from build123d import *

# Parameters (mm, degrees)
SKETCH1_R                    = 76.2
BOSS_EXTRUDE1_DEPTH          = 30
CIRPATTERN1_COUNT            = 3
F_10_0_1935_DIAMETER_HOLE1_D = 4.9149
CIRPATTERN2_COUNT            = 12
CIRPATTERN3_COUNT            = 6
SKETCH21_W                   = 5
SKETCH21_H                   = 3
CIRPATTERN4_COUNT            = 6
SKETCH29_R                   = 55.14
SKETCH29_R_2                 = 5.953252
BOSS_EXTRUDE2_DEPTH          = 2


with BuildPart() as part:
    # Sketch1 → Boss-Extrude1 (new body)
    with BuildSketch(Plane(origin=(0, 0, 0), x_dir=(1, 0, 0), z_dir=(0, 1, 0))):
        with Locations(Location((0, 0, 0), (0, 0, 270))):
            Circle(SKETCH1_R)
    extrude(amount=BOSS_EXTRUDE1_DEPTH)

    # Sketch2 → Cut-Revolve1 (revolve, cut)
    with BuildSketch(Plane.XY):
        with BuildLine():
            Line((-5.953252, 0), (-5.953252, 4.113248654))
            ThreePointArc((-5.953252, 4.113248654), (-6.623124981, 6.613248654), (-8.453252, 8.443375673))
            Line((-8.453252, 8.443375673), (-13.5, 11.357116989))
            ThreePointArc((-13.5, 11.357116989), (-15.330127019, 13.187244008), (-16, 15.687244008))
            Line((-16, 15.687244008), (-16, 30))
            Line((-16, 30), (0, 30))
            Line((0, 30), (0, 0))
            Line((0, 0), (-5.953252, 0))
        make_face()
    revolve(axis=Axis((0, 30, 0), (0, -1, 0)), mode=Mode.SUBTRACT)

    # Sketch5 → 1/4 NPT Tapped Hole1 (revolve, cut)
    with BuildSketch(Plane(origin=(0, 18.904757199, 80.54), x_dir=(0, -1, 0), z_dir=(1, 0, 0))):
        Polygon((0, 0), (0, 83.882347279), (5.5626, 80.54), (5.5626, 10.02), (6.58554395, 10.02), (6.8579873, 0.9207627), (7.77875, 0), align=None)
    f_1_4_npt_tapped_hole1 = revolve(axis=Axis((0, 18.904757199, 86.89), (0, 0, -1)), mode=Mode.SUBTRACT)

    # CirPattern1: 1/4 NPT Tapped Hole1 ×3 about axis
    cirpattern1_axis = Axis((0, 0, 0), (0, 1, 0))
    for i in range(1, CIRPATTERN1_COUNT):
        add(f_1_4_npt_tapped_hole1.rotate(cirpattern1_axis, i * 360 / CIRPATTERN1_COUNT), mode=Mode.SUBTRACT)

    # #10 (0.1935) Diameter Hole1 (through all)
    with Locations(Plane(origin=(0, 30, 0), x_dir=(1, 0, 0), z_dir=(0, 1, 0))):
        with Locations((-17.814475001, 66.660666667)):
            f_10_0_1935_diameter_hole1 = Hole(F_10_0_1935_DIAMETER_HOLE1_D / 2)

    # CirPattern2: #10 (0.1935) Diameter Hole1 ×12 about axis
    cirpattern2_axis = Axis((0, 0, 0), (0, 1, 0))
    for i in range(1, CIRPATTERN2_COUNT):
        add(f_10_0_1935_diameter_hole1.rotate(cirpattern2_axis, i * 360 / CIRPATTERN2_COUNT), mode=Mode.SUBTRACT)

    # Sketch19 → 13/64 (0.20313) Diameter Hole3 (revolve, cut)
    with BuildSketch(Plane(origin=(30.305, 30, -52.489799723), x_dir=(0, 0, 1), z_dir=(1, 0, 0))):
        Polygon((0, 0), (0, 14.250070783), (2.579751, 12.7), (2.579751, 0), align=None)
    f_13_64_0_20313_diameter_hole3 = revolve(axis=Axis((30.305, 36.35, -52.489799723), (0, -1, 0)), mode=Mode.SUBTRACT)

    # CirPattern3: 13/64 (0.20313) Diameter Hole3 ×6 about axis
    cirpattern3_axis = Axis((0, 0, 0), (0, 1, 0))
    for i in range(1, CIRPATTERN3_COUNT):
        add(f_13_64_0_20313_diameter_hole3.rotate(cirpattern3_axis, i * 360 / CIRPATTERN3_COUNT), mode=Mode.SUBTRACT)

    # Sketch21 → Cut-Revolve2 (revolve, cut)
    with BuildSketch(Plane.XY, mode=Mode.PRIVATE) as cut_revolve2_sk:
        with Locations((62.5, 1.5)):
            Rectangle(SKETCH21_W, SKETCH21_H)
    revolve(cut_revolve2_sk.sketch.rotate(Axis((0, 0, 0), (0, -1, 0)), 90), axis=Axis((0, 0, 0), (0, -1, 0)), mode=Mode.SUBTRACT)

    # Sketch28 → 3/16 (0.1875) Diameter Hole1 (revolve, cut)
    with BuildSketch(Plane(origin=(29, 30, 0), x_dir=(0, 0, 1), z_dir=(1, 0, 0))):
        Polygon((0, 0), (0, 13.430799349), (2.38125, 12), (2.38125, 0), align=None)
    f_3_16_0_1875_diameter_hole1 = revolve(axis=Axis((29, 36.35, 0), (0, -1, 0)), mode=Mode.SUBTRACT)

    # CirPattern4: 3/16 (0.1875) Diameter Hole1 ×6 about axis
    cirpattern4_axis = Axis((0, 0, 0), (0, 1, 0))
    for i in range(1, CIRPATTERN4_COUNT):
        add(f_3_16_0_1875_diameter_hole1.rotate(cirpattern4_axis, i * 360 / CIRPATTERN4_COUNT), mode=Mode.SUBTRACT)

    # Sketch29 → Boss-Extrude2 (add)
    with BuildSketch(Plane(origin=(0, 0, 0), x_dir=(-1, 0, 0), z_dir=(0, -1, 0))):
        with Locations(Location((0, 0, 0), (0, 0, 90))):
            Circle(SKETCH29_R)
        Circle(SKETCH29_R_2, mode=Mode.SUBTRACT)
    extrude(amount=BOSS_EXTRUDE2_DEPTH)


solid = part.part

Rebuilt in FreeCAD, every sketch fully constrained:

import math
import FreeCAD as App
import Part
import Sketcher

V = App.Vector
Q = App.Units.Quantity


def add_polygon(sketch, points):
    """Adds a closed chain of lines whose ends are joined by coincident constraints."""
    first, n = sketch.GeometryCount, len(points)
    for a, b in zip(points, points[1:] + points[:1]):
        sketch.addGeometry(Part.LineSegment(App.Vector(*a, 0), App.Vector(*b, 0)), False)
    for i in range(n):
        sketch.addConstraint(Sketcher.Constraint("Coincident", first + i, 2, first + (i + 1) % n, 1))

doc = App.newDocument("Part")
body = doc.addObject("PartDesign::Body", "Body")

# Sketch on XZ plane
sketch1 = doc.addObject("Sketcher::SketchObject", "Sketch")
body.addObject(sketch1)
sketch1.AttachmentSupport = (doc.XZ_Plane, [""])
sketch1.MapMode = "FlatFace"
sketch1.addGeometry(Part.Circle(V(0, 0, 0), V(0, 0, 1), 76), False)
sketch1.addConstraint([
    Sketcher.Constraint("Coincident", 0, 3, -1, 1),
    Sketcher.Constraint("Diameter", 0, Q("152.4 mm")),
])
pad1 = doc.addObject("PartDesign::Pad", "Pad")
body.addObject(pad1)
pad1.Profile = sketch1
pad1.Length = 30
pad1.Reversed = True

# Sketch on XY plane
sketch2 = doc.addObject("Sketcher::SketchObject", "Sketch001")
body.addObject(sketch2)
sketch2.AttachmentSupport = (doc.XY_Plane, [""])
sketch2.MapMode = "FlatFace"
sketch2.addGeometry([
    Part.LineSegment(V(-6, 4.1, 0), V(-6, 0, 0)),  # 0
    Part.LineSegment(V(-6, 0, 0), V(0, 0, 0)),  # 1
    Part.LineSegment(V(0, 0, 0), V(0, 30, 0)),  # 2
    Part.LineSegment(V(0, 30, 0), V(-16, 30, 0)),  # 3
    Part.LineSegment(V(-16, 30, 0), V(-16, 15.7, 0)),  # 4
    Part.ArcOfCircle(Part.Circle(V(-11, 15.7, 0), V(0, 0, 1), 5), math.radians(180), math.radians(240)),  # 5
    Part.LineSegment(V(-13.5, 11.4, 0), V(-8.5, 8.4, 0)),  # 6
    Part.ArcOfCircle(Part.Circle(V(-11, 4.1, 0), V(0, 0, 1), 5), math.radians(0), math.radians(60)),  # 7
], False)
sketch2.addConstraint([
    Sketcher.Constraint("Coincident", 0, 2, 1, 1),
    Sketcher.Constraint("Coincident", 1, 2, 2, 1),
    Sketcher.Constraint("Coincident", 2, 2, 3, 1),
    Sketcher.Constraint("Coincident", 3, 2, 4, 1),
    Sketcher.Constraint("Tangent", 4, 2, 5, 1),
    Sketcher.Constraint("Tangent", 5, 2, 6, 1),
    Sketcher.Constraint("Tangent", 6, 2, 7, 2),
    Sketcher.Constraint("Tangent", 7, 1, 0, 1),
    Sketcher.Constraint("Vertical", 0),
    Sketcher.Constraint("Horizontal", 1),
    Sketcher.Constraint("Vertical", 2),
    Sketcher.Constraint("Horizontal", 3),
    Sketcher.Constraint("Vertical", 4),
    Sketcher.Constraint("Coincident", 1, 2, -1, 1),
    Sketcher.Constraint("Equal", 5, 7),
    Sketcher.Constraint("Radius", 5, Q("5 mm")),
    Sketcher.Constraint("DistanceX", 3, 2, 3, 1, Q("16 mm")),
    Sketcher.Constraint("DistanceY", 2, 1, 2, 2, Q("30 mm")),
    Sketcher.Constraint("Angle", 6, Q("-30 deg")),
    Sketcher.Constraint("DistanceY", 0, 2, 0, 1, Q("4.113249 mm")),
    Sketcher.Constraint("DistanceX", 1, 1, 1, 2, Q("5.953252 mm")),
])
groove = doc.addObject("PartDesign::Groove", "Groove")
body.addObject(groove)
groove.Profile = sketch2
groove.ReferenceAxis = (sketch2, ["V_Axis"])
groove.Angle = 360

# Sketch on YZ plane
sketch3 = doc.addObject("Sketcher::SketchObject", "Sketch002")
body.addObject(sketch3)
sketch3.AttachmentSupport = (doc.YZ_Plane, [""])
sketch3.MapMode = "FlatFace"
add_polygon(sketch3, [(18.9, -3.3), (18.9, 80.5), (11.1, 80.5), (12, 79.6), (12.3, 70.5), (13.3, 70.5), (13.3, 0)])  # lines 0-6
sketch3.addGeometry(Part.LineSegment(V(18.9, 80.5, 0), V(18.9, -3.3, 0)), True)  # axis
sketch3.addConstraint([
    Sketcher.Constraint("Vertical", 0),
    Sketcher.Constraint("Horizontal", 1),
    Sketcher.Constraint("Horizontal", 4),
    Sketcher.Constraint("Vertical", 5),
    Sketcher.Constraint("Vertical", 7),
    Sketcher.Constraint("Coincident", 7, 1, 0, 2),
    Sketcher.Constraint("PointOnObject", 5, 2, -1),
    Sketcher.Constraint("Equal", 0, 7),
    Sketcher.Constraint("Angle", 2, Q("-45 deg")),
    Sketcher.Constraint("Angle", 6, Q("-31 deg")),
    Sketcher.Constraint("DistanceY", 5, 2, 5, 1, Q("70.52 mm")),
    Sketcher.Constraint("DistanceY", -1, 1, 0, 2, Q("80.54 mm")),
    Sketcher.Constraint("DistanceX", 1, 2, 1, 1, Q("7.77875 mm")),
    Sketcher.Constraint("DistanceX", 4, 2, 0, 2, Q("5.5626 mm")),
    Sketcher.Constraint("DistanceX", 4, 1, 4, 2, Q("1.022944 mm")),
    Sketcher.Constraint("DistanceX", -1, 1, 2, 2, Q("12.04677 mm")),
    Sketcher.Constraint("Distance", 2, Q("1.302155 mm")),
])
groove2 = doc.addObject("PartDesign::Groove", "Groove001")
body.addObject(groove2)
groove2.Profile = sketch3
groove2.ReferenceAxis = (sketch3, ["Axis0"])
groove2.Angle = 360
doc.recompute()

polarpattern = doc.addObject("PartDesign::PolarPattern", "PolarPattern")
body.addObject(polarpattern)
polarpattern.Originals = [groove2]
polarpattern.Axis = (doc.Y_Axis, [""])
polarpattern.Angle = 360
polarpattern.Occurrences = 3
body.Tip = polarpattern

# Sketch on XZ plane
sketch4 = doc.addObject("Sketcher::SketchObject", "Sketch003")
body.addObject(sketch4)
sketch4.AttachmentSupport = (doc.XZ_Plane, [""])
sketch4.MapMode = "FlatFace"
sketch4.AttachmentOffset = App.Placement(V(0, 0, -30), App.Rotation())
sketch4.addGeometry(Part.Circle(V(-17.8, -66.7, 0), V(0, 0, 1), 2.5), False)
sketch4.addConstraint([
    Sketcher.Constraint("Diameter", 0, Q("4.9149 mm")),
    Sketcher.Constraint("DistanceX", 0, 3, -1, 1, Q("17.814475 mm")),
    Sketcher.Constraint("DistanceY", 0, 3, -1, 1, Q("66.660667 mm")),
])
doc.recompute()
hole = doc.addObject("PartDesign::Hole", "Hole")
body.addObject(hole)
hole.Profile = sketch4
hole.ThreadType = "None"
hole.Diameter = 4.9149
hole.DepthType = "ThroughAll"
hole.Reversed = True
doc.recompute()

polarpattern2 = doc.addObject("PartDesign::PolarPattern", "PolarPattern001")
body.addObject(polarpattern2)
polarpattern2.Originals = [hole]
polarpattern2.Axis = (doc.Y_Axis, [""])
polarpattern2.Angle = 360
polarpattern2.Occurrences = 12
body.Tip = polarpattern2

# Sketch on YZ plane
sketch5 = doc.addObject("Sketcher::SketchObject", "Sketch004")
body.addObject(sketch5)
sketch5.AttachmentSupport = (doc.YZ_Plane, [""])
sketch5.MapMode = "FlatFace"
sketch5.AttachmentOffset = App.Placement(V(0, 0, 30.305), App.Rotation())
add_polygon(sketch5, [(15.7, -52.5), (30, -52.5), (30, -49.9), (17.3, -49.9)])  # lines 0-3
sketch5.addGeometry(Part.LineSegment(V(30, -52.5, 0), V(15.7, -52.5, 0)), True)  # axis
sketch5.addConstraint([
    Sketcher.Constraint("Horizontal", 0),
    Sketcher.Constraint("Vertical", 1),
    Sketcher.Constraint("Horizontal", 2),
    Sketcher.Constraint("Horizontal", 4),
    Sketcher.Constraint("Coincident", 4, 1, 0, 2),
    Sketcher.Constraint("Equal", 0, 4),
    Sketcher.Constraint("Angle", 3, Q("-121 deg")),
    Sketcher.Constraint("DistanceX", 2, 2, 2, 1, Q("12.7 mm")),
    Sketcher.Constraint("DistanceX", -1, 1, 0, 2, Q("30 mm")),
    Sketcher.Constraint("DistanceX", 0, 1, 0, 2, Q("14.250071 mm")),
    Sketcher.Constraint("DistanceY", 0, 2, -1, 1, Q("52.4898 mm")),
])
groove3 = doc.addObject("PartDesign::Groove", "Groove002")
body.addObject(groove3)
groove3.Profile = sketch5
groove3.ReferenceAxis = (sketch5, ["Axis0"])
groove3.Angle = 360
doc.recompute()

polarpattern3 = doc.addObject("PartDesign::PolarPattern", "PolarPattern002")
body.addObject(polarpattern3)
polarpattern3.Originals = [groove3]
polarpattern3.Axis = (doc.Y_Axis, [""])
polarpattern3.Angle = 360
polarpattern3.Occurrences = 6
body.Tip = polarpattern3

# Sketch on XY plane
sketch6 = doc.addObject("Sketcher::SketchObject", "Sketch005")
body.addObject(sketch6)
sketch6.AttachmentSupport = (doc.XY_Plane, [""])
sketch6.MapMode = "FlatFace"
add_polygon(sketch6, [(60, 3), (60, 0), (65, 0), (65, 3)])  # lines 0-3
sketch6.addConstraint([
    Sketcher.Constraint("Vertical", 0),
    Sketcher.Constraint("Horizontal", 1),
    Sketcher.Constraint("Vertical", 2),
    Sketcher.Constraint("Horizontal", 3),
    Sketcher.Constraint("PointOnObject", 0, 2, -1),
    Sketcher.Constraint("DistanceX", 1, 1, 1, 2, Q("5 mm")),
    Sketcher.Constraint("DistanceY", 0, 2, 0, 1, Q("3 mm")),
    Sketcher.Constraint("DistanceX", -1, 1, 0, 2, Q("60 mm")),
])
groove4 = doc.addObject("PartDesign::Groove", "Groove003")
body.addObject(groove4)
groove4.Profile = sketch6
groove4.ReferenceAxis = (sketch6, ["V_Axis"])
groove4.Angle = 360

# Sketch on YZ plane
sketch7 = doc.addObject("Sketcher::SketchObject", "Sketch006")
body.addObject(sketch7)
sketch7.AttachmentSupport = (doc.YZ_Plane, [""])
sketch7.MapMode = "FlatFace"
sketch7.AttachmentOffset = App.Placement(V(0, 0, 29), App.Rotation())
add_polygon(sketch7, [(16.6, 0), (30, 0), (30, 2.4), (18, 2.4)])  # lines 0-3
sketch7.addConstraint([
    Sketcher.Constraint("Horizontal", 0),
    Sketcher.Constraint("Vertical", 1),
    Sketcher.Constraint("Horizontal", 2),
    Sketcher.Constraint("PointOnObject", 0, 2, -1),
    Sketcher.Constraint("DistanceX", 2, 2, 2, 1, Q("12 mm")),
    Sketcher.Constraint("Angle", 3, Q("-121 deg")),
    Sketcher.Constraint("DistanceX", -1, 1, 0, 2, Q("30 mm")),
    Sketcher.Constraint("DistanceX", 0, 1, 0, 2, Q("13.430799 mm")),
])
groove5 = doc.addObject("PartDesign::Groove", "Groove004")
body.addObject(groove5)
groove5.Profile = sketch7
groove5.ReferenceAxis = (sketch7, ["H_Axis"])
groove5.Angle = 360
doc.recompute()

polarpattern4 = doc.addObject("PartDesign::PolarPattern", "PolarPattern003")
body.addObject(polarpattern4)
polarpattern4.Originals = [groove5]
polarpattern4.Axis = (doc.Y_Axis, [""])
polarpattern4.Angle = 360
polarpattern4.Occurrences = 6
body.Tip = polarpattern4

# Sketch on XZ plane
sketch8 = doc.addObject("Sketcher::SketchObject", "Sketch007")
body.addObject(sketch8)
sketch8.AttachmentSupport = (doc.XZ_Plane, [""])
sketch8.MapMode = "FlatFace"
sketch8.addGeometry([
    Part.Circle(V(0, 0, 0), V(0, 0, 1), 55),
    Part.Circle(V(0, 0, 0), V(0, 0, 1), 6),
], False)
sketch8.addConstraint([
    Sketcher.Constraint("Coincident", 0, 3, -1, 1),
    Sketcher.Constraint("Coincident", 1, 3, -1, 1),
    Sketcher.Constraint("Diameter", 0, Q("110.28 mm")),
    Sketcher.Constraint("Diameter", 1, Q("11.906504 mm")),
])
pad2 = doc.addObject("PartDesign::Pad", "Pad001")
body.addObject(pad2)
pad2.Profile = sketch8
pad2.Length = 2

doc.recompute()
